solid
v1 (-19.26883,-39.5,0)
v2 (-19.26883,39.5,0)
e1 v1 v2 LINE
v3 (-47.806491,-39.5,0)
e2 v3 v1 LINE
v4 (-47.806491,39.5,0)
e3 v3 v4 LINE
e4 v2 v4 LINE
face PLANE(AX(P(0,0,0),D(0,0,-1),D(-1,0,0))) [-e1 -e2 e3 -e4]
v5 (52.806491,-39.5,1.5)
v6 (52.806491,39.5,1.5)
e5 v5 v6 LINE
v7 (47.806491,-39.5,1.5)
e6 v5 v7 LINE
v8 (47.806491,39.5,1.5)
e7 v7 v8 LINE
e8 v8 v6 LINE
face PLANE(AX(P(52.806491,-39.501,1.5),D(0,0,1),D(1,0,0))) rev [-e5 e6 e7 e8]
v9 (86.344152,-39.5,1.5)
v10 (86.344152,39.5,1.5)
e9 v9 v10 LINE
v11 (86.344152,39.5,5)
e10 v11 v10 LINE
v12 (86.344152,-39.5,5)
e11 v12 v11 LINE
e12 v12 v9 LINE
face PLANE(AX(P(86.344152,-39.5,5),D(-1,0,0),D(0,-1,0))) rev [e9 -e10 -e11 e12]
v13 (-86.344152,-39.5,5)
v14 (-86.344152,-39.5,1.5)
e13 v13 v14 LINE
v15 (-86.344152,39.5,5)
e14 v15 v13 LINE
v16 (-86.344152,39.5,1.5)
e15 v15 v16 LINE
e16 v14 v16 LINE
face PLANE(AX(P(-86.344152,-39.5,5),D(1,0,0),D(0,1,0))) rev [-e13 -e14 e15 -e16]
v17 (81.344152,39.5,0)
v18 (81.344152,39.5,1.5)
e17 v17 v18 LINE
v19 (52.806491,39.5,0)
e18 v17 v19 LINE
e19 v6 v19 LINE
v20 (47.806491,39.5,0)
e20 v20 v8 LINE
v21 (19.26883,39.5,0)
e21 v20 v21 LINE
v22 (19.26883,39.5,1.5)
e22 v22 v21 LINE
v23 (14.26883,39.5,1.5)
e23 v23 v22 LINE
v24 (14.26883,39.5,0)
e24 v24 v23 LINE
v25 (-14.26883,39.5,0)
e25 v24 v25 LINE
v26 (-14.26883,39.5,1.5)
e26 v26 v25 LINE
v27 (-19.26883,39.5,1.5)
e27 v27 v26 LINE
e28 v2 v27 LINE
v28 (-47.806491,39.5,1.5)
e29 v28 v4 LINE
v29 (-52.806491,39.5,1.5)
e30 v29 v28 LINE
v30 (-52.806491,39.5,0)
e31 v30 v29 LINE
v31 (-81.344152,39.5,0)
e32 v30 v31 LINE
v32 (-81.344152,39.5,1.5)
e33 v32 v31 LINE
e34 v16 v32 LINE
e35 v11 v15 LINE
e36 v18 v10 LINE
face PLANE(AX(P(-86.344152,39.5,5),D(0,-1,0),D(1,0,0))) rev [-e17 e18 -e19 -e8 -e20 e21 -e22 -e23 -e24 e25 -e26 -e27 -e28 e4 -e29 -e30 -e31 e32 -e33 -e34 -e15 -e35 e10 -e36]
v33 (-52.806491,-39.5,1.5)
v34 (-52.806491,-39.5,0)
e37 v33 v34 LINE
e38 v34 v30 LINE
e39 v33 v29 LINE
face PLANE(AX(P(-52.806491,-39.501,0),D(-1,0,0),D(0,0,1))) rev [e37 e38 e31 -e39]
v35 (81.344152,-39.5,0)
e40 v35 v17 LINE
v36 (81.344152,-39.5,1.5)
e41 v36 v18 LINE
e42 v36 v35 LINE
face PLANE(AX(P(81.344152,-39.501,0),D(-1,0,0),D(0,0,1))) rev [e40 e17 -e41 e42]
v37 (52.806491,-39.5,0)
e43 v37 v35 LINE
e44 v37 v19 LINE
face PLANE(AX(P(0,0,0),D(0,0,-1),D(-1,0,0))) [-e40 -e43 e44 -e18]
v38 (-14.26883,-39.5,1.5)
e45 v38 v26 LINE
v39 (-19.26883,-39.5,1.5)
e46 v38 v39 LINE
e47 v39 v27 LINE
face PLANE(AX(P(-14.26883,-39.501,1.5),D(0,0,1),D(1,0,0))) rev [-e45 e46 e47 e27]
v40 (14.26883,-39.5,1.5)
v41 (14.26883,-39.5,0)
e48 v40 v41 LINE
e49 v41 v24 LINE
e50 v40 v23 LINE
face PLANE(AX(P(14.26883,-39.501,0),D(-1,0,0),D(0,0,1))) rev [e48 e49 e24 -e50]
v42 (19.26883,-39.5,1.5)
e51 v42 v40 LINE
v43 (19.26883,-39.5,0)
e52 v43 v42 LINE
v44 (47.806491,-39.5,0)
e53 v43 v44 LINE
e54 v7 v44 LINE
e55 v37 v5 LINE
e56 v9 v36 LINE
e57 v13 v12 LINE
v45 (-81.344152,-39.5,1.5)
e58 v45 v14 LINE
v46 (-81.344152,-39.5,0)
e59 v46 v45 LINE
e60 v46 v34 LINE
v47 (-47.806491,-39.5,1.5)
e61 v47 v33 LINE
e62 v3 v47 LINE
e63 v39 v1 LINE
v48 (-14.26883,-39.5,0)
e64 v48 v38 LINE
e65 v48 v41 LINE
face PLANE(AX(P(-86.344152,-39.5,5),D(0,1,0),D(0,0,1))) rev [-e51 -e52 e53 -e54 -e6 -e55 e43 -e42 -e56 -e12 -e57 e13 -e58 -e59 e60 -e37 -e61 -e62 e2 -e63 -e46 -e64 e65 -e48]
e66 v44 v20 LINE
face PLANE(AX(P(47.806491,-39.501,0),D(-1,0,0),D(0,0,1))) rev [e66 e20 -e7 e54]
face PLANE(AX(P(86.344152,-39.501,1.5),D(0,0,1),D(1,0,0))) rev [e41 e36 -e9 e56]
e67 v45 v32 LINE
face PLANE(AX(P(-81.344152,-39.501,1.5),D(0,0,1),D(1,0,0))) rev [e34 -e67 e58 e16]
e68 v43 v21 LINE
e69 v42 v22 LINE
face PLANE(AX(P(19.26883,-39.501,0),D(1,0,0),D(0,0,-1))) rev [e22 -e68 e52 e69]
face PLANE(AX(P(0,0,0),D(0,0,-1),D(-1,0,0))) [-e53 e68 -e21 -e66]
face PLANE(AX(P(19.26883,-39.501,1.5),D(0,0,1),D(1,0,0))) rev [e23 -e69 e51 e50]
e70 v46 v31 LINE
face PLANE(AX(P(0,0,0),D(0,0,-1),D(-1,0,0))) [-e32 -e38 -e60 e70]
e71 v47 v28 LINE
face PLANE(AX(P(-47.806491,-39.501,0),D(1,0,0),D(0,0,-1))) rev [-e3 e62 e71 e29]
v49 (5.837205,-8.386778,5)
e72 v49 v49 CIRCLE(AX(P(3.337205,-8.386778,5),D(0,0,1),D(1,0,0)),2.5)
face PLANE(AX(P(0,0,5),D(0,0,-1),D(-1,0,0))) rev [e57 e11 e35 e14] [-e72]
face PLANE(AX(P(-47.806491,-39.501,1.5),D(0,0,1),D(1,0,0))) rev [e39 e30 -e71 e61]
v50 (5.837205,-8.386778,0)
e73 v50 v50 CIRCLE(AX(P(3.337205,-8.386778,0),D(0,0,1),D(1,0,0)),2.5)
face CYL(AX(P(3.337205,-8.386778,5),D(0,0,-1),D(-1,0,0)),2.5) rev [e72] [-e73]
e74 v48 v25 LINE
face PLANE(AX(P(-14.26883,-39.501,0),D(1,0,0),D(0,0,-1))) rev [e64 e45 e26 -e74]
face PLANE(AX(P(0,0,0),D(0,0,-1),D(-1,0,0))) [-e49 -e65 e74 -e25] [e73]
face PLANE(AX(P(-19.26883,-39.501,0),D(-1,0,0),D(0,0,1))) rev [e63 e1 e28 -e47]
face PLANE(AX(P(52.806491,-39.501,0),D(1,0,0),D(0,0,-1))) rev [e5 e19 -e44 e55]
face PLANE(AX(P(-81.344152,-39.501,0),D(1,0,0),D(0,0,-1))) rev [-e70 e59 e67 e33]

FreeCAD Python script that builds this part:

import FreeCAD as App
import Part
import Sketcher

V = App.Vector

doc = App.newDocument("Part")
body = doc.addObject("PartDesign::Body", "Body")

sketch1 = body.newObject("Sketcher::SketchObject", "Sketch")
sketch1.AttachmentSupport = (doc.getObject("XY_Plane"), [""])
sketch1.MapMode = "FlatFace"
sketch1.addGeometry(Part.LineSegment(V(-86.3, 39.5, 0), V(-86.3, -39.5, 0)), False)
sketch1.addGeometry(Part.LineSegment(V(-86.3, -39.5, 0), V(86.3, -39.5, 0)), False)
sketch1.addGeometry(Part.LineSegment(V(86.3, -39.5, 0), V(86.3, 39.5, 0)), False)
sketch1.addGeometry(Part.LineSegment(V(86.3, 39.5, 0), V(-86.3, 39.5, 0)), False)
sketch1.addGeometry(Part.Circle(V(3.3, -8.4, 0), V(0, 0, 1), 2.5), False)
sketch1.addConstraint(Sketcher.Constraint("Coincident", 0, 2, 1, 1))
sketch1.addConstraint(Sketcher.Constraint("Coincident", 1, 2, 2, 1))
sketch1.addConstraint(Sketcher.Constraint("Coincident", 2, 2, 3, 1))
sketch1.addConstraint(Sketcher.Constraint("Coincident", 3, 2, 0, 1))
sketch1.addConstraint(Sketcher.Constraint("Vertical", 0))
sketch1.addConstraint(Sketcher.Constraint("Horizontal", 1))
sketch1.addConstraint(Sketcher.Constraint("Vertical", 2))
sketch1.addConstraint(Sketcher.Constraint("Horizontal", 3))
sketch1.addConstraint(Sketcher.Constraint("Symmetric", 0, 2, 2, 2, -1, 1))
sketch1.addConstraint(Sketcher.Constraint("Diameter", 4, 5.0))
sketch1.addConstraint(Sketcher.Constraint("DistanceY", 0, 2, 0, 1, 79.0))
sketch1.addConstraint(Sketcher.Constraint("DistanceX", 1, 1, 1, 2, 172.688303))
sketch1.addConstraint(Sketcher.Constraint("DistanceY", 4, 3, -1, 1, 8.386778))
sketch1.addConstraint(Sketcher.Constraint("DistanceX", -1, 1, 4, 3, 3.337205))
pad1 = body.newObject("PartDesign::Pad", "Pad")
pad1.Profile = sketch1
pad1.Length = 5

sketch2 = body.newObject("Sketcher::SketchObject", "Sketch001")
sketch2.AttachmentSupport = (doc.getObject("XZ_Plane"), [""])
sketch2.MapMode = "FlatFace"
sketch2.AttachmentOffset = App.Placement(V(0, 0, -39.5), App.Rotation())
sketch2.addGeometry(Part.LineSegment(V(81.3, 0, 0), V(81.3, 1.5, 0)), False)
sketch2.addGeometry(Part.LineSegment(V(81.3, 1.5, 0), V(86.3, 1.5, 0)), False)
sketch2.addGeometry(Part.LineSegment(V(86.3, 1.5, 0), V(86.3, 0, 0)), False)
sketch2.addGeometry(Part.LineSegment(V(86.3, 0, 0), V(81.3, 0, 0)), False)
sketch2.addConstraint(Sketcher.Constraint("Coincident", 0, 2, 1, 1))
sketch2.addConstraint(Sketcher.Constraint("Coincident", 1, 2, 2, 1))
sketch2.addConstraint(Sketcher.Constraint("Coincident", 2, 2, 3, 1))
sketch2.addConstraint(Sketcher.Constraint("Coincident", 3, 2, 0, 1))
sketch2.addConstraint(Sketcher.Constraint("Vertical", 0))
sketch2.addConstraint(Sketcher.Constraint("Horizontal", 1))
sketch2.addConstraint(Sketcher.Constraint("Vertical", 2))
sketch2.addConstraint(Sketcher.Constraint("Horizontal", 3))
sketch2.addConstraint(Sketcher.Constraint("PointOnObject", 2, 2, -1))
sketch2.addConstraint(Sketcher.Constraint("DistanceX", 1, 1, 1, 2, 5.0))
sketch2.addConstraint(Sketcher.Constraint("DistanceY", 0, 1, 0, 2, 1.5))
sketch2.addConstraint(Sketcher.Constraint("DistanceX", -1, 1, 0, 2, 81.344152))
pocket1 = body.newObject("PartDesign::Pocket", "Pocket")
pocket1.Profile = sketch2
pocket1.Type = "UpToFirst"
pocket1.Reversed = True

sketch3 = body.newObject("Sketcher::SketchObject", "Sketch002")
sketch3.AttachmentSupport = (doc.getObject("XZ_Plane"), [""])
sketch3.MapMode = "FlatFace"
sketch3.AttachmentOffset = App.Placement(V(0, 0, -39.5), App.Rotation())
sketch3.addGeometry(Part.LineSegment(V(47.8, 0, 0), V(47.8, 1.5, 0)), False)
sketch3.addGeometry(Part.LineSegment(V(47.8, 1.5, 0), V(52.8, 1.5, 0)), False)
sketch3.addGeometry(Part.LineSegment(V(52.8, 1.5, 0), V(52.8, 0, 0)), False)
sketch3.addGeometry(Part.LineSegment(V(52.8, 0, 0), V(47.8, 0, 0)), False)
sketch3.addConstraint(Sketcher.Constraint("Coincident", 0, 2, 1, 1))
sketch3.addConstraint(Sketcher.Constraint("Coincident", 1, 2, 2, 1))
sketch3.addConstraint(Sketcher.Constraint("Coincident", 2, 2, 3, 1))
sketch3.addConstraint(Sketcher.Constraint("Coincident", 3, 2, 0, 1))
sketch3.addConstraint(Sketcher.Constraint("Vertical", 0))
sketch3.addConstraint(Sketcher.Constraint("Horizontal", 1))
sketch3.addConstraint(Sketcher.Constraint("Vertical", 2))
sketch3.addConstraint(Sketcher.Constraint("Horizontal", 3))
sketch3.addConstraint(Sketcher.Constraint("PointOnObject", 2, 2, -1))
sketch3.addConstraint(Sketcher.Constraint("DistanceX", 1, 1, 1, 2, 5.0))
sketch3.addConstraint(Sketcher.Constraint("DistanceY", 0, 1, 0, 2, 1.5))
sketch3.addConstraint(Sketcher.Constraint("DistanceX", -1, 1, 0, 2, 47.806491))
pocket2 = body.newObject("PartDesign::Pocket", "Pocket001")
pocket2.Profile = sketch3
pocket2.Type = "UpToFirst"
pocket2.Reversed = True

sketch4 = body.newObject("Sketcher::SketchObject", "Sketch003")
sketch4.AttachmentSupport = (doc.getObject("XZ_Plane"), [""])
sketch4.MapMode = "FlatFace"
sketch4.AttachmentOffset = App.Placement(V(0, 0, -39.5), App.Rotation())
sketch4.addGeometry(Part.LineSegment(V(14.3, 0, 0), V(14.3, 1.5, 0)), False)
sketch4.addGeometry(Part.LineSegment(V(14.3, 1.5, 0), V(19.3, 1.5, 0)), False)
sketch4.addGeometry(Part.LineSegment(V(19.3, 1.5, 0), V(19.3, 0, 0)), False)
sketch4.addGeometry(Part.LineSegment(V(19.3, 0, 0), V(14.3, 0, 0)), False)
sketch4.addConstraint(Sketcher.Constraint("Coincident", 0, 2, 1, 1))
sketch4.addConstraint(Sketcher.Constraint("Coincident", 1, 2, 2, 1))
sketch4.addConstraint(Sketcher.Constraint("Coincident", 2, 2, 3, 1))
sketch4.addConstraint(Sketcher.Constraint("Coincident", 3, 2, 0, 1))
sketch4.addConstraint(Sketcher.Constraint("Vertical", 0))
sketch4.addConstraint(Sketcher.Constraint("Horizontal", 1))
sketch4.addConstraint(Sketcher.Constraint("Vertical", 2))
sketch4.addConstraint(Sketcher.Constraint("Horizontal", 3))
sketch4.addConstraint(Sketcher.Constraint("PointOnObject", 2, 2, -1))
sketch4.addConstraint(Sketcher.Constraint("DistanceX", 1, 1, 1, 2, 5.0))
sketch4.addConstraint(Sketcher.Constraint("DistanceY", 0, 1, 0, 2, 1.5))
sketch4.addConstraint(Sketcher.Constraint("DistanceX", -1, 1, 0, 2, 14.26883))
pocket3 = body.newObject("PartDesign::Pocket", "Pocket002")
pocket3.Profile = sketch4
pocket3.Type = "UpToFirst"
pocket3.Reversed = True

sketch5 = body.newObject("Sketcher::SketchObject", "Sketch004")
sketch5.AttachmentSupport = (doc.getObject("XZ_Plane"), [""])
sketch5.MapMode = "FlatFace"
sketch5.AttachmentOffset = App.Placement(V(0, 0, -39.5), App.Rotation())
sketch5.addGeometry(Part.LineSegment(V(-19.3, 0, 0), V(-19.3, 1.5, 0)), False)
sketch5.addGeometry(Part.LineSegment(V(-19.3, 1.5, 0), V(-14.3, 1.5, 0)), False)
sketch5.addGeometry(Part.LineSegment(V(-14.3, 1.5, 0), V(-14.3, 0, 0)), False)
sketch5.addGeometry(Part.LineSegment(V(-14.3, 0, 0), V(-19.3, 0, 0)), False)
sketch5.addConstraint(Sketcher.Constraint("Coincident", 0, 2, 1, 1))
sketch5.addConstraint(Sketcher.Constraint("Coincident", 1, 2, 2, 1))
sketch5.addConstraint(Sketcher.Constraint("Coincident", 2, 2, 3, 1))
sketch5.addConstraint(Sketcher.Constraint("Coincident", 3, 2, 0, 1))
sketch5.addConstraint(Sketcher.Constraint("Vertical", 0))
sketch5.addConstraint(Sketcher.Constraint("Horizontal", 1))
sketch5.addConstraint(Sketcher.Constraint("Vertical", 2))
sketch5.addConstraint(Sketcher.Constraint("Horizontal", 3))
sketch5.addConstraint(Sketcher.Constraint("PointOnObject", 2, 2, -1))
sketch5.addConstraint(Sketcher.Constraint("DistanceX", 1, 1, 1, 2, 5.0))
sketch5.addConstraint(Sketcher.Constraint("DistanceY", 0, 1, 0, 2, 1.5))
sketch5.addConstraint(Sketcher.Constraint("DistanceX", 0, 2, -1, 1, 19.26883))
pocket4 = body.newObject("PartDesign::Pocket", "Pocket003")
pocket4.Profile = sketch5
pocket4.Type = "UpToFirst"
pocket4.Reversed = True

sketch6 = body.newObject("Sketcher::SketchObject", "Sketch005")
sketch6.AttachmentSupport = (doc.getObject("XZ_Plane"), [""])
sketch6.MapMode = "FlatFace"
sketch6.AttachmentOffset = App.Placement(V(0, 0, -39.5), App.Rotation())
sketch6.addGeometry(Part.LineSegment(V(-52.8, 0, 0), V(-52.8, 1.5, 0)), False)
sketch6.addGeometry(Part.LineSegment(V(-52.8, 1.5, 0), V(-47.8, 1.5, 0)), False)
sketch6.addGeometry(Part.LineSegment(V(-47.8, 1.5, 0), V(-47.8, 0, 0)), False)
sketch6.addGeometry(Part.LineSegment(V(-47.8, 0, 0), V(-52.8, 0, 0)), False)
sketch6.addConstraint(Sketcher.Constraint("Coincident", 0, 2, 1, 1))
sketch6.addConstraint(Sketcher.Constraint("Coincident", 1, 2, 2, 1))
sketch6.addConstraint(Sketcher.Constraint("Coincident", 2, 2, 3, 1))
sketch6.addConstraint(Sketcher.Constraint("Coincident", 3, 2, 0, 1))
sketch6.addConstraint(Sketcher.Constraint("Vertical", 0))
sketch6.addConstraint(Sketcher.Constraint("Horizontal", 1))
sketch6.addConstraint(Sketcher.Constraint("Vertical", 2))
sketch6.addConstraint(Sketcher.Constraint("Horizontal", 3))
sketch6.addConstraint(Sketcher.Constraint("PointOnObject", 2, 2, -1))
sketch6.addConstraint(Sketcher.Constraint("DistanceX", 1, 1, 1, 2, 5.0))
sketch6.addConstraint(Sketcher.Constraint("DistanceY", 0, 1, 0, 2, 1.5))
sketch6.addConstraint(Sketcher.Constraint("DistanceX", 0, 2, -1, 1, 52.806491))
pocket5 = body.newObject("PartDesign::Pocket", "Pocket004")
pocket5.Profile = sketch6
pocket5.Type = "UpToFirst"
pocket5.Reversed = True

sketch7 = body.newObject("Sketcher::SketchObject", "Sketch006")
sketch7.AttachmentSupport = (doc.getObject("XZ_Plane"), [""])
sketch7.MapMode = "FlatFace"
sketch7.AttachmentOffset = App.Placement(V(0, 0, -39.5), App.Rotation())
sketch7.addGeometry(Part.LineSegment(V(-86.3, 0, 0), V(-86.3, 1.5, 0)), False)
sketch7.addGeometry(Part.LineSegment(V(-86.3, 1.5, 0), V(-81.3, 1.5, 0)), False)
sketch7.addGeometry(Part.LineSegment(V(-81.3, 1.5, 0), V(-81.3, 0, 0)), False)
sketch7.addGeometry(Part.LineSegment(V(-81.3, 0, 0), V(-86.3, 0, 0)), False)
sketch7.addConstraint(Sketcher.Constraint("Coincident", 0, 2, 1, 1))
sketch7.addConstraint(Sketcher.Constraint("Coincident", 1, 2, 2, 1))
sketch7.addConstraint(Sketcher.Constraint("Coincident", 2, 2, 3, 1))
sketch7.addConstraint(Sketcher.Constraint("Coincident", 3, 2, 0, 1))
sketch7.addConstraint(Sketcher.Constraint("Vertical", 0))
sketch7.addConstraint(Sketcher.Constraint("Horizontal", 1))
sketch7.addConstraint(Sketcher.Constraint("Vertical", 2))
sketch7.addConstraint(Sketcher.Constraint("Horizontal", 3))
sketch7.addConstraint(Sketcher.Constraint("PointOnObject", 2, 2, -1))
sketch7.addConstraint(Sketcher.Constraint("DistanceX", 1, 1, 1, 2, 5.0))
sketch7.addConstraint(Sketcher.Constraint("DistanceY", 0, 1, 0, 2, 1.5))
sketch7.addConstraint(Sketcher.Constraint("DistanceX", 0, 2, -1, 1, 86.344152))
pocket6 = body.newObject("PartDesign::Pocket", "Pocket005")
pocket6.Profile = sketch7
pocket6.Type = "UpToFirst"
pocket6.Reversed = True

doc.recompute()
